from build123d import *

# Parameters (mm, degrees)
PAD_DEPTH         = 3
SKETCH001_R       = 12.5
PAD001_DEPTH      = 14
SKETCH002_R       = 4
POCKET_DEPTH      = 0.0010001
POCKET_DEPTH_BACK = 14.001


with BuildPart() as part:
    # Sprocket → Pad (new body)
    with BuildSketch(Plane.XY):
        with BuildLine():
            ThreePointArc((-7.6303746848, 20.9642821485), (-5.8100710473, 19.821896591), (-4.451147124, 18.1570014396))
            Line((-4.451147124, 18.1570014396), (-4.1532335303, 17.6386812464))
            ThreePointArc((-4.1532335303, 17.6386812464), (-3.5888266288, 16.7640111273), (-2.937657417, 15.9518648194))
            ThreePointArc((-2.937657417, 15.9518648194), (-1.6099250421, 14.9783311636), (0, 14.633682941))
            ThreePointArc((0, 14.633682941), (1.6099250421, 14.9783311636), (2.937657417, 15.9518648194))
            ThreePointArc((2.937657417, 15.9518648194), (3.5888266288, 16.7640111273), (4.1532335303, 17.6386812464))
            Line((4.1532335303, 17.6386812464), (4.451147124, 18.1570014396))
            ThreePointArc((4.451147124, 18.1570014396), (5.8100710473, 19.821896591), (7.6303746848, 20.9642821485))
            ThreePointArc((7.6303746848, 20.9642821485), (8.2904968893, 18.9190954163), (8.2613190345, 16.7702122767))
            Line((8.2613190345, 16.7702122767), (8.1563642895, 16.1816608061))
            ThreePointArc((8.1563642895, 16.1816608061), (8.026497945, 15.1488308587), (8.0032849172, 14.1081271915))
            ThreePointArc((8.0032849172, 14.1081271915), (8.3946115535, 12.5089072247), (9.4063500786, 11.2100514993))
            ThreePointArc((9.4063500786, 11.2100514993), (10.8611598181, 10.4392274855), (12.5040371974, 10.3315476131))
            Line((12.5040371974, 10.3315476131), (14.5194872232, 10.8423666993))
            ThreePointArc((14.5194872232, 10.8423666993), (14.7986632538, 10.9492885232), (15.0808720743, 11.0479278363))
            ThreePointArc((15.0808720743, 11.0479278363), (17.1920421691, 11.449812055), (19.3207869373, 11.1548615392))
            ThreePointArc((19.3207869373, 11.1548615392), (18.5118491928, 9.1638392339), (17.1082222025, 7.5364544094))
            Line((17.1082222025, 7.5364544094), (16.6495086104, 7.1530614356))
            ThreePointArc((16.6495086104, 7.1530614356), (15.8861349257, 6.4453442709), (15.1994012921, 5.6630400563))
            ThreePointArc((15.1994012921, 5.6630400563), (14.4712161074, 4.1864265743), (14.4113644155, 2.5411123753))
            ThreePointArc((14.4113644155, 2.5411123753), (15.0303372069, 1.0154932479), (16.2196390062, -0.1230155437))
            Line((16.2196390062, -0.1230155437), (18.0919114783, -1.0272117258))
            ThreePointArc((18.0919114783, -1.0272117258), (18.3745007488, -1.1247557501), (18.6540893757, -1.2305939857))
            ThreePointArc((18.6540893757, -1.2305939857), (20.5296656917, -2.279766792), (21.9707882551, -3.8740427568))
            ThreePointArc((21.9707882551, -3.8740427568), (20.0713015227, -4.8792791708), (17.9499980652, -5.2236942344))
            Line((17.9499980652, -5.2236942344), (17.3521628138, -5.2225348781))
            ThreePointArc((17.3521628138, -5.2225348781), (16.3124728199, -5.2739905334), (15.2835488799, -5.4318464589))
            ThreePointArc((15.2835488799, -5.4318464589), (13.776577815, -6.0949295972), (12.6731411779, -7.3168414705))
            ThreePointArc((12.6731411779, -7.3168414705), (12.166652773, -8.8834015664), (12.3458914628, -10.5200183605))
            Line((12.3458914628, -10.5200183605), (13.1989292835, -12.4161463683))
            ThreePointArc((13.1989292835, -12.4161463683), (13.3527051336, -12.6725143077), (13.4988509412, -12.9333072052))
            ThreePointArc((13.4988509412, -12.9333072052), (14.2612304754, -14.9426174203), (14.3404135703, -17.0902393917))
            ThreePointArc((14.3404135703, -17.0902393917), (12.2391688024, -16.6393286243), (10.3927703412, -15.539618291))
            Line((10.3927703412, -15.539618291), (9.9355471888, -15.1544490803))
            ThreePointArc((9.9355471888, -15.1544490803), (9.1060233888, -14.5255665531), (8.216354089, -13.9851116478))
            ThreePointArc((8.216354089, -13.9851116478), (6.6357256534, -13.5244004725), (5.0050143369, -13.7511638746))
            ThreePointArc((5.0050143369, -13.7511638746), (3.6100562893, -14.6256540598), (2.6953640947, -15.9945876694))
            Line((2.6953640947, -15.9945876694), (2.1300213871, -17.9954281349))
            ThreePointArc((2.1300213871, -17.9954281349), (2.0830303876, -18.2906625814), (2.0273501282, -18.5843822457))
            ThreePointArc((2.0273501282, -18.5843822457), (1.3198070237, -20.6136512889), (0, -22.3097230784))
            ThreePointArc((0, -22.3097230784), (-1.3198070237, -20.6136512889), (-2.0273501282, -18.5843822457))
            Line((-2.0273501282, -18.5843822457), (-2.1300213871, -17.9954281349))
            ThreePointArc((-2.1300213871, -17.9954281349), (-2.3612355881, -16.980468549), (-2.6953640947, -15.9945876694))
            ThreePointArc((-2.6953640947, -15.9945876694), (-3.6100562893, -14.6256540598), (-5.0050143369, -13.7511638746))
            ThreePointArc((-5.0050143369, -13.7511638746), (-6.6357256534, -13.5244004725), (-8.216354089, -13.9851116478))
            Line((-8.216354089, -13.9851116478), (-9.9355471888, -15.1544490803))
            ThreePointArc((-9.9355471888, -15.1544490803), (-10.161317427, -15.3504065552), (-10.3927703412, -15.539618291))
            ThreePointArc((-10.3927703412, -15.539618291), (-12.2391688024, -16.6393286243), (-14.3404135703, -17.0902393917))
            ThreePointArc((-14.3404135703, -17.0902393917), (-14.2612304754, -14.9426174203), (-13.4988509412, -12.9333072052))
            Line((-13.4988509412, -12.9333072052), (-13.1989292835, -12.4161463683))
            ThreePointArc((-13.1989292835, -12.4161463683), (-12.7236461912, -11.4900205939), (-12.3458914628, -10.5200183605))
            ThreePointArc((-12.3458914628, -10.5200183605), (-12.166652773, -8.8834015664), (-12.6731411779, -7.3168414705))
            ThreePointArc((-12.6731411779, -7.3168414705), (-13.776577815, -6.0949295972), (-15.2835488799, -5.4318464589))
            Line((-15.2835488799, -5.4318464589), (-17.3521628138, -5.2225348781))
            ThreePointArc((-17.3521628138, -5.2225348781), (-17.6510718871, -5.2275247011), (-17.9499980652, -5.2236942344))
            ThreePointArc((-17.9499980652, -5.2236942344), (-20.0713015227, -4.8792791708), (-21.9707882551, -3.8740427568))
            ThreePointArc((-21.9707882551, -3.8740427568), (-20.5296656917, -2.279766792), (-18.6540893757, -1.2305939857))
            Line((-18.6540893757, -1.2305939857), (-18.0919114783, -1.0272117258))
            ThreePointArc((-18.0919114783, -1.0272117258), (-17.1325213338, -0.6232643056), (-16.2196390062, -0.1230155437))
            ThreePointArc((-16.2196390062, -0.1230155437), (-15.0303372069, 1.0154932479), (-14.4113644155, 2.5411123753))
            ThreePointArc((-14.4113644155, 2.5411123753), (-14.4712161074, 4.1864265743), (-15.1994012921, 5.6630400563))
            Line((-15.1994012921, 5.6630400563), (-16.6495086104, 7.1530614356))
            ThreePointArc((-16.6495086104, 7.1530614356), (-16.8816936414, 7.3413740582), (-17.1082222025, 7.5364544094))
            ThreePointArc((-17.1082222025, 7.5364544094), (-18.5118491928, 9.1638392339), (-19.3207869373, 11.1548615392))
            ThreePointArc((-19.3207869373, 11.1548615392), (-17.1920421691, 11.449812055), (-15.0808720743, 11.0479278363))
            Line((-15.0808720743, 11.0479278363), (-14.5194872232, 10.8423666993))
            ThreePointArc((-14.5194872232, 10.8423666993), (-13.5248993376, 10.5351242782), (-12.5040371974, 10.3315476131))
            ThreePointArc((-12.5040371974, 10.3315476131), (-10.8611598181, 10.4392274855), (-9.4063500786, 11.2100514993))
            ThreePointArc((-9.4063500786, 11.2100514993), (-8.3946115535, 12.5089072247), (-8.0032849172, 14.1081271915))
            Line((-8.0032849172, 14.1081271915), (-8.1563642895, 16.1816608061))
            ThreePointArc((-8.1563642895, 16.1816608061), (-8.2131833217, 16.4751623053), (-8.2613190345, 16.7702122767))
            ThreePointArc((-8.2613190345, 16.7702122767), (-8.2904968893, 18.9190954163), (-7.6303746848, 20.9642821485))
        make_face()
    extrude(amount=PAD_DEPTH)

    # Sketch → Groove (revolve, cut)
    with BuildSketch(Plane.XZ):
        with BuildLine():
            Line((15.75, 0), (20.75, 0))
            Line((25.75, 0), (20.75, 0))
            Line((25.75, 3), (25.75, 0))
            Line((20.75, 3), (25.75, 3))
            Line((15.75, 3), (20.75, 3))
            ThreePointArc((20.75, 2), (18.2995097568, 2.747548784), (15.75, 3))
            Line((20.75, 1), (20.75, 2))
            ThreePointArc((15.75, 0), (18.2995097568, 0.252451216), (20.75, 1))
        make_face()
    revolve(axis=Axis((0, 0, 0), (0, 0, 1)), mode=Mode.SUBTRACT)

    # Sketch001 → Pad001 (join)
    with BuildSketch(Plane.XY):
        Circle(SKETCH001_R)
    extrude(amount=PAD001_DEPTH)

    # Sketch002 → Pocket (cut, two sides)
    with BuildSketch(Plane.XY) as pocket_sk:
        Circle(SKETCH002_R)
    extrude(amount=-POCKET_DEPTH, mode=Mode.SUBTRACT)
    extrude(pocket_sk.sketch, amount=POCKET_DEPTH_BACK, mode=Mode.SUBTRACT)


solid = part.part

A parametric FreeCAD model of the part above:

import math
import FreeCAD as App
import Part
import Sketcher
from FreeCAD import Vector
Q = App.Units.Quantity

doc = App.newDocument("Part")
body = doc.addObject("PartDesign::Body", "Body")

# Sketch on XY plane
sketch1 = body.newObject("Sketcher::SketchObject", "Sketch")
sketch1.AttachmentSupport = (doc.getObject("XY_Plane"), [""])
sketch1.MapMode = "FlatFace"
sketch1.addGeometry([
    Part.ArcOfCircle(Part.Circle(Vector(-10.195665, 14.855239, 0), Vector(0, 0, 1), 6.625792), math.radians(29.888889), math.radians(67.221642)),  # 0
    Part.ArcOfCircle(Part.Circle(Vector(-1.738431, 17.933421, 0), Vector(0, 0, 1), 6.625792), math.radians(152.778358), math.radians(190.111111)),  # 1
    Part.ArcOfCircle(Part.Circle(Vector(1.761926, 18.253996, 0), Vector(0, 0, 1), 10.132475), math.radians(-171.579417), math.radians(-168.198361)),  # 2
    Part.LineSegment(Vector(-8.156364, 16.181661, 0), Vector(-8.003285, 14.108127, 0)),  # 3
    Part.ArcOfCircle(Part.Circle(Vector(-11.934096, 14.222502, 0), Vector(0, 0, 1), 3.932475), math.radians(-50), math.radians(-1.666667)),  # 4
    Part.ArcOfCircle(Part.Circle(Vector(-11.934096, 14.222502, 0), Vector(0, 0, 1), 3.932475), math.radians(-98.333333), math.radians(-50)),  # 5
    Part.ArcOfCircle(Part.Circle(Vector(-11.035519, 20.35704, 0), Vector(0, 0, 1), 10.132475), math.radians(-110.111111), math.radians(-98.333333)),  # 6
    Part.LineSegment(Vector(-14.519487, 10.842367, 0), Vector(-15.080872, 11.047928, 0)),  # 7
    Part.ArcOfCircle(Part.Circle(Vector(-17.359096, 4.826126, 0), Vector(0, 0, 1), 6.625792), math.radians(69.888889), math.radians(107.221642)),  # 8
    Part.ArcOfCircle(Part.Circle(Vector(-12.859096, 12.620355, 0), Vector(0, 0, 1), 6.625792), math.radians(-167.221642), math.radians(-129.888889)),  # 9
    Part.ArcOfCircle(Part.Circle(Vector(-10.383729, 15.115916, 0), Vector(0, 0, 1), 10.132475), math.radians(-131.579417), math.radians(-128.198361)),  # 10
    Part.LineSegment(Vector(-16.649509, 7.153061, 0), Vector(-15.199401, 5.66304, 0)),  # 11
    Part.ArcOfCircle(Part.Circle(Vector(-18.284096, 3.223979, 0), Vector(0, 0, 1), 3.932475), math.radians(-10), math.radians(38.333333)),  # 12
    Part.ArcOfCircle(Part.Circle(Vector(-18.284096, 3.223979, 0), Vector(0, 0, 1), 3.932475), math.radians(-58.333333), math.radians(-10)),  # 13
    Part.ArcOfCircle(Part.Circle(Vector(-21.538951, 8.500903, 0), Vector(0, 0, 1), 10.132475), math.radians(-70.111111), math.radians(-58.333333)),  # 14
    Part.LineSegment(Vector(-18.091911, -1.027212, 0), Vector(-18.654089, -1.230594, 0)),  # 15
    Part.ArcOfCircle(Part.Circle(Vector(-16.400014, -7.461185, 0), Vector(0, 0, 1), 6.625792), math.radians(109.888889), math.radians(147.221642)),  # 16
    Part.ArcOfCircle(Part.Circle(Vector(-17.962847, 1.402085, 0), Vector(0, 0, 1), 6.625792), math.radians(-127.221642), math.radians(-89.888889)),  # 17
    Part.ArcOfCircle(Part.Circle(Vector(-17.670721, 4.904931, 0), Vector(0, 0, 1), 10.132475), math.radians(-91.579417), math.radians(-88.198361)),  # 18
    Part.LineSegment(Vector(-17.352163, -5.222535, 0), Vector(-15.283549, -5.431846, 0)),  # 19
    Part.ArcOfCircle(Part.Circle(Vector(-16.078764, -9.283079, 0), Vector(0, 0, 1), 3.932475), math.radians(30), math.radians(78.333333)),  # 20
    Part.ArcOfCircle(Part.Circle(Vector(-16.078764, -9.283079, 0), Vector(0, 0, 1), 3.932475), math.radians(-18.333333), math.radians(30)),  # 21
    Part.ArcOfCircle(Part.Circle(Vector(-21.964069, -7.332901, 0), Vector(0, 0, 1), 10.132475), math.radians(-30.111111), math.radians(-18.333333)),  # 22
    Part.LineSegment(Vector(-13.198929, -12.416146, 0), Vector(-13.498851, -12.933307, 0)),  # 23
    Part.ArcOfCircle(Part.Circle(Vector(-7.767182, -16.257325, 0), Vector(0, 0, 1), 6.625792), math.radians(149.888889), math.radians(187.221642)),  # 24
    Part.ArcOfCircle(Part.Circle(Vector(-14.661582, -10.472236, 0), Vector(0, 0, 1), 6.625792), math.radians(-87.221642), math.radians(-49.888889)),  # 25
    Part.ArcOfCircle(Part.Circle(Vector(-16.689387, -7.601125, 0), Vector(0, 0, 1), 10.132475), math.radians(-51.579417), math.radians(-48.198361)),  # 26
    Part.LineSegment(Vector(-9.935547, -15.154449, 0), Vector(-8.216354, -13.985112, 0)),  # 27
    Part.ArcOfCircle(Part.Circle(Vector(-6.35, -17.446482, 0), Vector(0, 0, 1), 3.932475), math.radians(70), math.radians(118.333333)),  # 28
    Part.ArcOfCircle(Part.Circle(Vector(-6.35, -17.446482, 0), Vector(0, 0, 1), 3.932475), math.radians(21.666667), math.radians(70)),  # 29
    Part.ArcOfCircle(Part.Circle(Vector(-12.111955, -19.73556, 0), Vector(0, 0, 1), 10.132475), math.radians(9.888889), math.radians(21.666667)),  # 30
    Part.LineSegment(Vector(-2.130021, -17.995428, 0), Vector(-2.02735, -18.584382, 0)),  # 31
    Part.ArcOfCircle(Part.Circle(Vector(4.5, -17.446482, 0), Vector(0, 0, 1), 6.625792), math.radians(-170.111111), math.radians(-132.778358)),  # 32
    Part.ArcOfCircle(Part.Circle(Vector(-4.5, -17.446482, 0), Vector(0, 0, 1), 6.625792), math.radians(-47.221642), math.radians(-9.888889)),  # 33
    Part.ArcOfCircle(Part.Circle(Vector(-7.898903, -16.550531, 0), Vector(0, 0, 1), 10.132475), math.radians(-11.579417), math.radians(-8.198361)),  # 34
    Part.LineSegment(Vector(2.130021, -17.995428, 0), Vector(2.695364, -15.994588, 0)),  # 35
    Part.ArcOfCircle(Part.Circle(Vector(6.35, -17.446482, 0), Vector(0, 0, 1), 3.932475), math.radians(110), math.radians(158.333333)),  # 36
    Part.ArcOfCircle(Part.Circle(Vector(6.35, -17.446482, 0), Vector(0, 0, 1), 3.932475), math.radians(61.666667), math.radians(110)),  # 37
    Part.ArcOfCircle(Part.Circle(Vector(3.407478, -22.90373, 0), Vector(0, 0, 1), 10.132475), math.radians(49.888889), math.radians(61.666667)),  # 38
    Part.LineSegment(Vector(9.935547, -15.154449, 0), Vector(10.39277, -15.539618, 0)),  # 39
    Part.ArcOfCircle(Part.Circle(Vector(14.661582, -10.472236, 0), Vector(0, 0, 1), 6.625792), math.radians(-130.111111), math.radians(-92.778358)),  # 40
    Part.ArcOfCircle(Part.Circle(Vector(7.767182, -16.257325, 0), Vector(0, 0, 1), 6.625792), math.radians(-7.221642), math.radians(30.111111)),  # 41
    Part.ArcOfCircle(Part.Circle(Vector(4.587566, -17.755759, 0), Vector(0, 0, 1), 10.132475), math.radians(28.420583), math.radians(31.801639)),  # 42
    Part.LineSegment(Vector(13.198929, -12.416146, 0), Vector(12.345891, -10.520018, 0)),  # 43
    Part.ArcOfCircle(Part.Circle(Vector(16.078764, -9.283079, 0), Vector(0, 0, 1), 3.932475), math.radians(150), math.radians(198.333333)),  # 44
    Part.ArcOfCircle(Part.Circle(Vector(16.078764, -9.283079, 0), Vector(0, 0, 1), 3.932475), math.radians(101.666667), math.radians(150)),  # 45
    Part.ArcOfCircle(Part.Circle(Vector(17.332513, -15.354991, 0), Vector(0, 0, 1), 10.132475), math.radians(89.888889), math.radians(101.666667)),  # 46
    Part.LineSegment(Vector(17.352163, -5.222535, 0), Vector(17.949998, -5.223694, 0)),  # 47
    Part.ArcOfCircle(Part.Circle(Vector(17.962847, 1.402085, 0), Vector(0, 0, 1), 6.625792), math.radians(-90.111111), math.radians(-52.778358)),  # 48
    Part.ArcOfCircle(Part.Circle(Vector(16.400014, -7.461185, 0), Vector(0, 0, 1), 6.625792), math.radians(32.778358), math.radians(70.111111)),  # 49
    Part.ArcOfCircle(Part.Circle(Vector(14.927461, -10.65287, 0), Vector(0, 0, 1), 10.132475), math.radians(68.420583), math.radians(71.801639)),  # 50
    Part.LineSegment(Vector(18.091911, -1.027212, 0), Vector(16.219639, -0.123016, 0)),  # 51
    Part.ArcOfCircle(Part.Circle(Vector(18.284096, 3.223979, 0), Vector(0, 0, 1), 3.932475), math.radians(-170), math.radians(-121.666667)),  # 52
    Part.ArcOfCircle(Part.Circle(Vector(18.284096, 3.223979, 0), Vector(0, 0, 1), 3.932475), math.radians(141.666667), math.radians(190)),  # 53
    Part.ArcOfCircle(Part.Circle(Vector(23.147473, -0.621481, 0), Vector(0, 0, 1), 10.132475), math.radians(129.888889), math.radians(141.666667)),  # 54
    Part.LineSegment(Vector(16.649509, 7.153061, 0), Vector(17.108222, 7.536454, 0)),  # 55
    Part.ArcOfCircle(Part.Circle(Vector(12.859096, 12.620355, 0), Vector(0, 0, 1), 6.625792), math.radians(-50.111111), math.radians(-12.778358)),  # 56
    Part.ArcOfCircle(Part.Circle(Vector(17.359096, 4.826126, 0), Vector(0, 0, 1), 6.625792), math.radians(72.778358), math.radians(110.111111)),  # 57
    Part.ArcOfCircle(Part.Circle(Vector(18.282632, 1.434615, 0), Vector(0, 0, 1), 10.132475), math.radians(108.420583), math.radians(111.801639)),  # 58
    Part.LineSegment(Vector(14.519487, 10.842367, 0), Vector(12.504037, 10.331548, 0)),  # 59
    Part.ArcOfCircle(Part.Circle(Vector(11.934096, 14.222502, 0), Vector(0, 0, 1), 3.932475), math.radians(-130), math.radians(-81.666667)),  # 60
    Part.ArcOfCircle(Part.Circle(Vector(11.934096, 14.222502, 0), Vector(0, 0, 1), 3.932475), math.radians(-178.333333), math.radians(-130)),  # 61
    Part.ArcOfCircle(Part.Circle(Vector(18.131473, 14.402827, 0), Vector(0, 0, 1), 10.132475), math.radians(169.888889), math.radians(181.666667)),  # 62
    Part.LineSegment(Vector(8.156364, 16.181661, 0), Vector(8.261319, 16.770212, 0)),  # 63
    Part.ArcOfCircle(Part.Circle(Vector(1.738431, 17.933421, 0), Vector(0, 0, 1), 6.625792), math.radians(-10.111111), math.radians(27.221642)),  # 64
    Part.ArcOfCircle(Part.Circle(Vector(10.195665, 14.855239, 0), Vector(0, 0, 1), 6.625792), math.radians(112.778358), math.radians(150.111111)),  # 65
    Part.LineSegment(Vector(4.451147, 18.157001, 0), Vector(4.153234, 17.638681, 0)),  # 66
    Part.ArcOfCircle(Part.Circle(Vector(-4.631555, 22.687892, 0), Vector(0, 0, 1), 10.132475), math.radians(-41.666667), math.radians(-29.888889)),  # 67
    Part.ArcOfCircle(Part.Circle(Vector(0, 18.566158, 0), Vector(0, 0, 1), 3.932475), math.radians(-90), math.radians(-41.666667)),  # 68
    Part.ArcOfCircle(Part.Circle(Vector(0, 18.566158, 0), Vector(0, 0, 1), 3.932475), math.radians(-138.333333), math.radians(-90)),  # 69
    Part.ArcOfCircle(Part.Circle(Vector(4.631555, 22.687892, 0), Vector(0, 0, 1), 10.132475), math.radians(-150.111111), math.radians(-138.333333)),  # 70
    Part.LineSegment(Vector(-4.153234, 17.638681, 0), Vector(-4.451147, 18.157001, 0)),  # 71
], False)
sketch1.addConstraint([
    Sketcher.Constraint("Coincident", 0, 2, 1, 1),
    Sketcher.Constraint("Coincident", 1, 2, 2, 1),
    Sketcher.Constraint("Coincident", 2, 2, 3, 1),
    Sketcher.Constraint("Coincident", 3, 2, 4, 2),
    Sketcher.Constraint("Tangent", 4, 1, 5, 2),
    Sketcher.Constraint("Tangent", 5, 1, 6, 2),
    Sketcher.Constraint("Tangent", 6, 1, 7, 1),
    Sketcher.Constraint("Tangent", 7, 2, 8, 1),
    Sketcher.Constraint("Coincident", 8, 2, 9, 1),
    Sketcher.Constraint("Coincident", 9, 2, 10, 1),
    Sketcher.Constraint("Coincident", 10, 2, 11, 1),
    Sketcher.Constraint("Coincident", 11, 2, 12, 2),
    Sketcher.Constraint("Tangent", 12, 1, 13, 2),
    Sketcher.Constraint("Tangent", 13, 1, 14, 2),
    Sketcher.Constraint("Tangent", 14, 1, 15, 1),
    Sketcher.Constraint("Tangent", 15, 2, 16, 1),
    Sketcher.Constraint("Coincident", 16, 2, 17, 1),
    Sketcher.Constraint("Coincident", 17, 2, 18, 1),
    Sketcher.Constraint("Coincident", 18, 2, 19, 1),
    Sketcher.Constraint("Coincident", 19, 2, 20, 2),
    Sketcher.Constraint("Tangent", 20, 1, 21, 2),
    Sketcher.Constraint("Tangent", 21, 1, 22, 2),
    Sketcher.Constraint("Tangent", 22, 1, 23, 1),
    Sketcher.Constraint("Tangent", 23, 2, 24, 1),
    Sketcher.Constraint("Coincident", 24, 2, 25, 1),
    Sketcher.Constraint("Coincident", 25, 2, 26, 1),
    Sketcher.Constraint("Coincident", 26, 2, 27, 1),
    Sketcher.Constraint("Coincident", 27, 2, 28, 2),
    Sketcher.Constraint("Tangent", 28, 1, 29, 2),
    Sketcher.Constraint("Tangent", 29, 1, 30, 2),
    Sketcher.Constraint("Tangent", 30, 1, 31, 1),
    Sketcher.Constraint("Tangent", 31, 2, 32, 1),
    Sketcher.Constraint("Coincident", 32, 2, 33, 1),
    Sketcher.Constraint("Coincident", 33, 2, 34, 1),
    Sketcher.Constraint("Coincident", 34, 2, 35, 1),
    Sketcher.Constraint("Coincident", 35, 2, 36, 2),
    Sketcher.Constraint("Tangent", 36, 1, 37, 2),
    Sketcher.Constraint("Tangent", 37, 1, 38, 2),
    Sketcher.Constraint("Tangent", 38, 1, 39, 1),
    Sketcher.Constraint("Tangent", 39, 2, 40, 1),
    Sketcher.Constraint("Coincident", 40, 2, 41, 1),
    Sketcher.Constraint("Coincident", 41, 2, 42, 1),
    Sketcher.Constraint("Coincident", 42, 2, 43, 1),
    Sketcher.Constraint("Coincident", 43, 2, 44, 2),
    Sketcher.Constraint("Tangent", 44, 1, 45, 2),
    Sketcher.Constraint("Tangent", 45, 1, 46, 2),
    Sketcher.Constraint("Tangent", 46, 1, 47, 1),
    Sketcher.Constraint("Tangent", 47, 2, 48, 1),
    Sketcher.Constraint("Coincident", 48, 2, 49, 1),
    Sketcher.Constraint("Coincident", 49, 2, 50, 1),
    Sketcher.Constraint("Coincident", 50, 2, 51, 1),
    Sketcher.Constraint("Coincident", 51, 2, 52, 2),
    Sketcher.Constraint("Tangent", 52, 1, 53, 2),
    Sketcher.Constraint("Tangent", 53, 1, 54, 2),
    Sketcher.Constraint("Tangent", 54, 1, 55, 1),
    Sketcher.Constraint("Tangent", 55, 2, 56, 1),
    Sketcher.Constraint("Coincident", 56, 2, 57, 1),
    Sketcher.Constraint("Coincident", 57, 2, 58, 1),
    Sketcher.Constraint("Coincident", 58, 2, 59, 1),
    Sketcher.Constraint("Coincident", 59, 2, 60, 2),
    Sketcher.Constraint("Tangent", 60, 1, 61, 2),
    Sketcher.Constraint("Tangent", 61, 1, 62, 2),
    Sketcher.Constraint("Tangent", 62, 1, 63, 1),
    Sketcher.Constraint("Tangent", 63, 2, 64, 1),
    Sketcher.Constraint("Coincident", 64, 2, 65, 1),
    Sketcher.Constraint("Tangent", 65, 2, 66, 1),
    Sketcher.Constraint("Tangent", 66, 2, 67, 2),
    Sketcher.Constraint("Tangent", 67, 1, 68, 2),
    Sketcher.Constraint("Tangent", 68, 1, 69, 2),
    Sketcher.Constraint("Tangent", 69, 1, 70, 2),
    Sketcher.Constraint("Tangent", 70, 1, 71, 1),
    Sketcher.Constraint("Tangent", 71, 2, 0, 1),
    Sketcher.Constraint("Equal", 0, 1),
    Sketcher.Constraint("Equal", 4, 5),
    Sketcher.Constraint("Equal", 2, 6),
    Sketcher.Constraint("Equal", 1, 8),
    Sketcher.Constraint("Equal", 8, 9),
    Sketcher.Constraint("Equal", 6, 10),
    Sketcher.Constraint("Equal", 5, 12),
    Sketcher.Constraint("Equal", 12, 13),
    Sketcher.Constraint("Equal", 10, 14),
    Sketcher.Constraint("Equal", 9, 16),
    Sketcher.Constraint("Equal", 16, 17),
    Sketcher.Constraint("Equal", 14, 18),
    Sketcher.Constraint("Equal", 13, 20),
    Sketcher.Constraint("Equal", 20, 21),
    Sketcher.Constraint("Equal", 18, 22),
    Sketcher.Constraint("Equal", 17, 24),
    Sketcher.Constraint("Equal", 24, 25),
    Sketcher.Constraint("Equal", 22, 26),
    Sketcher.Constraint("Equal", 21, 28),
    Sketcher.Constraint("Equal", 28, 29),
    Sketcher.Constraint("Equal", 26, 30),
    Sketcher.Constraint("Equal", 25, 32),
    Sketcher.Constraint("Equal", 32, 33),
    Sketcher.Constraint("Equal", 30, 34),
    Sketcher.Constraint("Equal", 29, 36),
    Sketcher.Constraint("Equal", 36, 37),
    Sketcher.Constraint("Equal", 34, 38),
    Sketcher.Constraint("Equal", 33, 40),
    Sketcher.Constraint("Equal", 40, 41),
    Sketcher.Constraint("Equal", 38, 42),
    Sketcher.Constraint("Equal", 37, 44),
    Sketcher.Constraint("Equal", 44, 45),
    Sketcher.Constraint("Equal", 42, 46),
    Sketcher.Constraint("Equal", 41, 48),
    Sketcher.Constraint("Equal", 48, 49),
    Sketcher.Constraint("Equal", 46, 50),
    Sketcher.Constraint("Equal", 45, 52),
    Sketcher.Constraint("Equal", 52, 53),
    Sketcher.Constraint("Equal", 50, 54),
    Sketcher.Constraint("Equal", 49, 56),
    Sketcher.Constraint("Equal", 56, 57),
    Sketcher.Constraint("Equal", 54, 58),
    Sketcher.Constraint("Equal", 53, 60),
    Sketcher.Constraint("Equal", 60, 61),
    Sketcher.Constraint("Equal", 58, 62),
    Sketcher.Constraint("Equal", 57, 64),
    Sketcher.Constraint("Equal", 64, 65),
    Sketcher.Constraint("Equal", 62, 67),
    Sketcher.Constraint("Equal", 61, 68),
    Sketcher.Constraint("Equal", 68, 69),
    Sketcher.Constraint("Equal", 67, 70),
    Sketcher.Constraint("Symmetric", 32, 3, 33, 3, -2),
    Sketcher.Constraint("Symmetric", 28, 3, 36, 3, -2),
    Sketcher.Constraint("Symmetric", 25, 3, 40, 3, -2),
    Sketcher.Constraint("Symmetric", 24, 3, 41, 3, -2),
    Sketcher.Constraint("Symmetric", 20, 3, 44, 3, -2),
    Sketcher.Constraint("Symmetric", 17, 3, 48, 3, -2),
    Sketcher.Constraint("Symmetric", 16, 3, 49, 3, -2),
    Sketcher.Constraint("Symmetric", 12, 3, 52, 3, -2),
    Sketcher.Constraint("Symmetric", 9, 3, 56, 3, -2),
    Sketcher.Constraint("Symmetric", 8, 3, 57, 3, -2),
    Sketcher.Constraint("Symmetric", 4, 3, 60, 3, -2),
    Sketcher.Constraint("Symmetric", 1, 3, 64, 3, -2),
    Sketcher.Constraint("Symmetric", 0, 3, 65, 3, -2),
    Sketcher.Constraint("Symmetric", 67, 3, 70, 3, -2),
    Sketcher.Constraint("Symmetric", 30, 1, 34, 2, -2),
    Sketcher.Constraint("Symmetric", 26, 2, 38, 1, -2),
    Sketcher.Constraint("Symmetric", 22, 1, 42, 2, -2),
    Sketcher.Constraint("Symmetric", 18, 2, 46, 1, -2),
    Sketcher.Constraint("Symmetric", 14, 1, 50, 2, -2),
    Sketcher.Constraint("Symmetric", 10, 2, 54, 1, -2),
    Sketcher.Constraint("Symmetric", 6, 1, 58, 2, -2),
    Sketcher.Constraint("Symmetric", 2, 2, 62, 1, -2),
    Sketcher.Constraint("PointOnObject", 68, 1, -2),
    Sketcher.Constraint("Horizontal", 29, 3, 32, 3),
    Sketcher.Constraint("Horizontal", 31, 2, 33, 2),
    Sketcher.Constraint("Horizontal", 29, 1, 35, 2),
    Sketcher.Constraint("Horizontal", 28, 1, 36, 1),
    Sketcher.Constraint("Horizontal", 27, 2, 37, 1),
    Sketcher.Constraint("Horizontal", 25, 2, 39, 2),
    Sketcher.Constraint("Horizontal", 23, 2, 41, 2),
    Sketcher.Constraint("Horizontal", 21, 1, 43, 2),
    Sketcher.Constraint("Horizontal", 20, 1, 44, 1),
    Sketcher.Constraint("Horizontal", 19, 2, 45, 1),
    Sketcher.Constraint("Horizontal", 17, 2, 47, 2),
    Sketcher.Constraint("Horizontal", 15, 2, 49, 2),
    Sketcher.Constraint("Horizontal", 13, 1, 51, 2),
    Sketcher.Constraint("Horizontal", 12, 1, 52, 1),
    Sketcher.Constraint("Horizontal", 11, 2, 53, 1),
    Sketcher.Constraint("Horizontal", 9, 2, 55, 2),
    Sketcher.Constraint("Horizontal", 7, 2, 57, 2),
    Sketcher.Constraint("Horizontal", 5, 1, 59, 2),
    Sketcher.Constraint("Horizontal", 4, 1, 60, 1),
    Sketcher.Constraint("Horizontal", 3, 2, 61, 1),
    Sketcher.Constraint("Horizontal", 1, 2, 63, 2),
    Sketcher.Constraint("Equal", 3, 11),
    Sketcher.Constraint("Equal", 7, 15),
    Sketcher.Constraint("Equal", 11, 19),
    Sketcher.Constraint("Equal", 15, 23),
    Sketcher.Constraint("Equal", 19, 27),
    Sketcher.Constraint("Equal", 23, 31),
    Sketcher.Constraint("Equal", 27, 35),
    Sketcher.Constraint("Equal", 31, 39),
    Sketcher.Constraint("Equal", 35, 43),
    Sketcher.Constraint("Equal", 39, 47),
    Sketcher.Constraint("Equal", 43, 51),
    Sketcher.Constraint("Equal", 47, 55),
    Sketcher.Constraint("Equal", 51, 59),
    Sketcher.Constraint("Equal", 55, 63),
    Sketcher.Constraint("Equal", 63, 66),
    Sketcher.Constraint("DistanceX", -1, 1, 32, 3, Q("4.5 mm")),
    Sketcher.Constraint("DistanceX", 28, 3, -1, 1, Q("6.35 mm")),
    Sketcher.Constraint("DistanceX", 17, 2, -1, 1, Q("17.949998 mm")),
    Sketcher.Constraint("Radius", 0, Q("6.625792 mm")),
    Sketcher.Constraint("DistanceY", -1, 1, 65, 2, Q("18.157001 mm")),
    Sketcher.Constraint("Radius", 2, Q("10.132475 mm")),
    Sketcher.Constraint("Radius", 4, Q("3.932475 mm")),
    Sketcher.Constraint("DistanceY", 22, 3, -1, 1, Q("7.332901 mm")),
    Sketcher.Constraint("DistanceX", 11, 2, -1, 1, Q("15.199401 mm")),
    Sketcher.Constraint("DistanceY", -1, 1, 0, 3, Q("14.855239 mm")),
    Sketcher.Constraint("DistanceX", 1, 3, -1, 1, Q("1.738431 mm")),
    Sketcher.Constraint("DistanceY", -1, 1, 1, 3, Q("17.933421 mm")),
    Sketcher.Constraint("DistanceX", 6, 3, -1, 1, Q("11.035519 mm")),
    Sketcher.Constraint("DistanceY", -1, 1, 6, 3, Q("20.35704 mm")),
    Sketcher.Constraint("DistanceX", 10, 3, -1, 1, Q("10.383729 mm")),
    Sketcher.Constraint("DistanceY", -1, 1, 12, 3, Q("3.223979 mm")),
    Sketcher.Constraint("DistanceX", 14, 3, -1, 1, Q("21.538951 mm")),
    Sketcher.Constraint("DistanceX", 18, 3, -1, 1, Q("17.670721 mm")),
    Sketcher.Constraint("DistanceY", -1, 1, 18, 3, Q("4.904931 mm")),
    Sketcher.Constraint("DistanceY", 20, 3, -1, 1, Q("9.283079 mm")),
    Sketcher.Constraint("DistanceY", 28, 3, -1, 1, Q("17.446482 mm")),
    Sketcher.Constraint("DistanceY", 38, 3, -1, 1, Q("22.90373 mm")),
    Sketcher.Constraint("DistanceX", 4, 1, -1, 1, Q("9.40635 mm")),
    Sketcher.Constraint("DistanceX", 20, 1, -1, 1, Q("12.673141 mm")),
    Sketcher.Constraint("DistanceX", 0, 3, -1, 1, Q("10.195665 mm")),
    Sketcher.Constraint("DistanceX", 12, 1, -1, 1, Q("14.411364 mm")),
    Sketcher.Constraint("DistanceX", 28, 1, -1, 1, Q("5.005014 mm")),
])
pad1 = body.newObject("PartDesign::Pad", "Pad")
pad1.Profile = sketch1
pad1.Length = 3

# Sketch on XZ plane
sketch2 = body.newObject("Sketcher::SketchObject", "Sketch001")
sketch2.AttachmentSupport = (doc.getObject("XZ_Plane"), [""])
sketch2.MapMode = "FlatFace"
sketch2.addGeometry([
    Part.LineSegment(Vector(15.8, 0, 0), Vector(25.8, 0, 0)),  # 0
    Part.LineSegment(Vector(25.8, 0, 0), Vector(25.8, 3, 0)),  # 1
    Part.LineSegment(Vector(25.8, 3, 0), Vector(15.8, 3, 0)),  # 2
    Part.ArcOfCircle(Part.Circle(Vector(15.8, -10, 0), Vector(0, 0, 1), 13), math.radians(67), math.radians(90)),  # 3
    Part.LineSegment(Vector(20.8, 2, 0), Vector(20.8, 1, 0)),  # 4
    Part.ArcOfCircle(Part.Circle(Vector(15.8, 13, 0), Vector(0, 0, 1), 13), math.radians(-90), math.radians(-67)),  # 5
], False)
sketch2.addConstraint([
    Sketcher.Constraint("Coincident", 0, 2, 1, 1),
    Sketcher.Constraint("Coincident", 1, 2, 2, 1),
    Sketcher.Constraint("Tangent", 2, 2, 3, 2),
    Sketcher.Constraint("Coincident", 3, 1, 4, 1),
    Sketcher.Constraint("Coincident", 4, 2, 5, 2),
    Sketcher.Constraint("Tangent", 5, 1, 0, 1),
    Sketcher.Constraint("Horizontal", 0),
    Sketcher.Constraint("Vertical", 1),
    Sketcher.Constraint("Horizontal", 2),
    Sketcher.Constraint("Vertical", 4),
    Sketcher.Constraint("Equal", 3, 5),
    Sketcher.Constraint("PointOnObject", 0, 2, -1),
    Sketcher.Constraint("Vertical", 3, 3, 5, 3),
    Sketcher.Constraint("Radius", 3, Q("13 mm")),
    Sketcher.Constraint("DistanceX", 0, 1, 0, 2, Q("10 mm")),
    Sketcher.Constraint("DistanceY", 1, 1, 1, 2, Q("3 mm")),
    Sketcher.Constraint("DistanceY", 4, 2, 4, 1, Q("1 mm")),
    Sketcher.Constraint("DistanceX", -1, 1, 3, 3, Q("15.75 mm")),
])
groove = body.newObject("PartDesign::Groove", "Groove")
groove.Profile = sketch2
groove.ReferenceAxis = (sketch2, ["V_Axis"])
groove.Angle = 360

# Sketch on XY plane
sketch3 = body.newObject("Sketcher::SketchObject", "Sketch002")
sketch3.AttachmentSupport = (doc.getObject("XY_Plane"), [""])
sketch3.MapMode = "FlatFace"
sketch3.addGeometry(Part.Circle(Vector(0, 0, 0), Vector(0, 0, 1), 12), False)
sketch3.addConstraint([
    Sketcher.Constraint("Coincident", 0, 3, -1, 1),
    Sketcher.Constraint("Diameter", 0, Q("25 mm")),
])
pad2 = body.newObject("PartDesign::Pad", "Pad001")
pad2.Profile = sketch3
pad2.Length = 14

# Sketch on XY plane
sketch4 = body.newObject("Sketcher::SketchObject", "Sketch003")
sketch4.AttachmentSupport = (doc.getObject("XY_Plane"), [""])
sketch4.MapMode = "FlatFace"
sketch4.addGeometry(Part.Circle(Vector(0, 0, 0), Vector(0, 0, 1), 4), False)
sketch4.addConstraint([
    Sketcher.Constraint("Coincident", 0, 3, -1, 1),
    Sketcher.Constraint("Diameter", 0, Q("8 mm")),
])
pocket1 = body.newObject("PartDesign::Pocket", "Pocket")
pocket1.Profile = sketch4
pocket1.Type = "ThroughAll"
pocket1.Midplane = True

doc.recompute()
